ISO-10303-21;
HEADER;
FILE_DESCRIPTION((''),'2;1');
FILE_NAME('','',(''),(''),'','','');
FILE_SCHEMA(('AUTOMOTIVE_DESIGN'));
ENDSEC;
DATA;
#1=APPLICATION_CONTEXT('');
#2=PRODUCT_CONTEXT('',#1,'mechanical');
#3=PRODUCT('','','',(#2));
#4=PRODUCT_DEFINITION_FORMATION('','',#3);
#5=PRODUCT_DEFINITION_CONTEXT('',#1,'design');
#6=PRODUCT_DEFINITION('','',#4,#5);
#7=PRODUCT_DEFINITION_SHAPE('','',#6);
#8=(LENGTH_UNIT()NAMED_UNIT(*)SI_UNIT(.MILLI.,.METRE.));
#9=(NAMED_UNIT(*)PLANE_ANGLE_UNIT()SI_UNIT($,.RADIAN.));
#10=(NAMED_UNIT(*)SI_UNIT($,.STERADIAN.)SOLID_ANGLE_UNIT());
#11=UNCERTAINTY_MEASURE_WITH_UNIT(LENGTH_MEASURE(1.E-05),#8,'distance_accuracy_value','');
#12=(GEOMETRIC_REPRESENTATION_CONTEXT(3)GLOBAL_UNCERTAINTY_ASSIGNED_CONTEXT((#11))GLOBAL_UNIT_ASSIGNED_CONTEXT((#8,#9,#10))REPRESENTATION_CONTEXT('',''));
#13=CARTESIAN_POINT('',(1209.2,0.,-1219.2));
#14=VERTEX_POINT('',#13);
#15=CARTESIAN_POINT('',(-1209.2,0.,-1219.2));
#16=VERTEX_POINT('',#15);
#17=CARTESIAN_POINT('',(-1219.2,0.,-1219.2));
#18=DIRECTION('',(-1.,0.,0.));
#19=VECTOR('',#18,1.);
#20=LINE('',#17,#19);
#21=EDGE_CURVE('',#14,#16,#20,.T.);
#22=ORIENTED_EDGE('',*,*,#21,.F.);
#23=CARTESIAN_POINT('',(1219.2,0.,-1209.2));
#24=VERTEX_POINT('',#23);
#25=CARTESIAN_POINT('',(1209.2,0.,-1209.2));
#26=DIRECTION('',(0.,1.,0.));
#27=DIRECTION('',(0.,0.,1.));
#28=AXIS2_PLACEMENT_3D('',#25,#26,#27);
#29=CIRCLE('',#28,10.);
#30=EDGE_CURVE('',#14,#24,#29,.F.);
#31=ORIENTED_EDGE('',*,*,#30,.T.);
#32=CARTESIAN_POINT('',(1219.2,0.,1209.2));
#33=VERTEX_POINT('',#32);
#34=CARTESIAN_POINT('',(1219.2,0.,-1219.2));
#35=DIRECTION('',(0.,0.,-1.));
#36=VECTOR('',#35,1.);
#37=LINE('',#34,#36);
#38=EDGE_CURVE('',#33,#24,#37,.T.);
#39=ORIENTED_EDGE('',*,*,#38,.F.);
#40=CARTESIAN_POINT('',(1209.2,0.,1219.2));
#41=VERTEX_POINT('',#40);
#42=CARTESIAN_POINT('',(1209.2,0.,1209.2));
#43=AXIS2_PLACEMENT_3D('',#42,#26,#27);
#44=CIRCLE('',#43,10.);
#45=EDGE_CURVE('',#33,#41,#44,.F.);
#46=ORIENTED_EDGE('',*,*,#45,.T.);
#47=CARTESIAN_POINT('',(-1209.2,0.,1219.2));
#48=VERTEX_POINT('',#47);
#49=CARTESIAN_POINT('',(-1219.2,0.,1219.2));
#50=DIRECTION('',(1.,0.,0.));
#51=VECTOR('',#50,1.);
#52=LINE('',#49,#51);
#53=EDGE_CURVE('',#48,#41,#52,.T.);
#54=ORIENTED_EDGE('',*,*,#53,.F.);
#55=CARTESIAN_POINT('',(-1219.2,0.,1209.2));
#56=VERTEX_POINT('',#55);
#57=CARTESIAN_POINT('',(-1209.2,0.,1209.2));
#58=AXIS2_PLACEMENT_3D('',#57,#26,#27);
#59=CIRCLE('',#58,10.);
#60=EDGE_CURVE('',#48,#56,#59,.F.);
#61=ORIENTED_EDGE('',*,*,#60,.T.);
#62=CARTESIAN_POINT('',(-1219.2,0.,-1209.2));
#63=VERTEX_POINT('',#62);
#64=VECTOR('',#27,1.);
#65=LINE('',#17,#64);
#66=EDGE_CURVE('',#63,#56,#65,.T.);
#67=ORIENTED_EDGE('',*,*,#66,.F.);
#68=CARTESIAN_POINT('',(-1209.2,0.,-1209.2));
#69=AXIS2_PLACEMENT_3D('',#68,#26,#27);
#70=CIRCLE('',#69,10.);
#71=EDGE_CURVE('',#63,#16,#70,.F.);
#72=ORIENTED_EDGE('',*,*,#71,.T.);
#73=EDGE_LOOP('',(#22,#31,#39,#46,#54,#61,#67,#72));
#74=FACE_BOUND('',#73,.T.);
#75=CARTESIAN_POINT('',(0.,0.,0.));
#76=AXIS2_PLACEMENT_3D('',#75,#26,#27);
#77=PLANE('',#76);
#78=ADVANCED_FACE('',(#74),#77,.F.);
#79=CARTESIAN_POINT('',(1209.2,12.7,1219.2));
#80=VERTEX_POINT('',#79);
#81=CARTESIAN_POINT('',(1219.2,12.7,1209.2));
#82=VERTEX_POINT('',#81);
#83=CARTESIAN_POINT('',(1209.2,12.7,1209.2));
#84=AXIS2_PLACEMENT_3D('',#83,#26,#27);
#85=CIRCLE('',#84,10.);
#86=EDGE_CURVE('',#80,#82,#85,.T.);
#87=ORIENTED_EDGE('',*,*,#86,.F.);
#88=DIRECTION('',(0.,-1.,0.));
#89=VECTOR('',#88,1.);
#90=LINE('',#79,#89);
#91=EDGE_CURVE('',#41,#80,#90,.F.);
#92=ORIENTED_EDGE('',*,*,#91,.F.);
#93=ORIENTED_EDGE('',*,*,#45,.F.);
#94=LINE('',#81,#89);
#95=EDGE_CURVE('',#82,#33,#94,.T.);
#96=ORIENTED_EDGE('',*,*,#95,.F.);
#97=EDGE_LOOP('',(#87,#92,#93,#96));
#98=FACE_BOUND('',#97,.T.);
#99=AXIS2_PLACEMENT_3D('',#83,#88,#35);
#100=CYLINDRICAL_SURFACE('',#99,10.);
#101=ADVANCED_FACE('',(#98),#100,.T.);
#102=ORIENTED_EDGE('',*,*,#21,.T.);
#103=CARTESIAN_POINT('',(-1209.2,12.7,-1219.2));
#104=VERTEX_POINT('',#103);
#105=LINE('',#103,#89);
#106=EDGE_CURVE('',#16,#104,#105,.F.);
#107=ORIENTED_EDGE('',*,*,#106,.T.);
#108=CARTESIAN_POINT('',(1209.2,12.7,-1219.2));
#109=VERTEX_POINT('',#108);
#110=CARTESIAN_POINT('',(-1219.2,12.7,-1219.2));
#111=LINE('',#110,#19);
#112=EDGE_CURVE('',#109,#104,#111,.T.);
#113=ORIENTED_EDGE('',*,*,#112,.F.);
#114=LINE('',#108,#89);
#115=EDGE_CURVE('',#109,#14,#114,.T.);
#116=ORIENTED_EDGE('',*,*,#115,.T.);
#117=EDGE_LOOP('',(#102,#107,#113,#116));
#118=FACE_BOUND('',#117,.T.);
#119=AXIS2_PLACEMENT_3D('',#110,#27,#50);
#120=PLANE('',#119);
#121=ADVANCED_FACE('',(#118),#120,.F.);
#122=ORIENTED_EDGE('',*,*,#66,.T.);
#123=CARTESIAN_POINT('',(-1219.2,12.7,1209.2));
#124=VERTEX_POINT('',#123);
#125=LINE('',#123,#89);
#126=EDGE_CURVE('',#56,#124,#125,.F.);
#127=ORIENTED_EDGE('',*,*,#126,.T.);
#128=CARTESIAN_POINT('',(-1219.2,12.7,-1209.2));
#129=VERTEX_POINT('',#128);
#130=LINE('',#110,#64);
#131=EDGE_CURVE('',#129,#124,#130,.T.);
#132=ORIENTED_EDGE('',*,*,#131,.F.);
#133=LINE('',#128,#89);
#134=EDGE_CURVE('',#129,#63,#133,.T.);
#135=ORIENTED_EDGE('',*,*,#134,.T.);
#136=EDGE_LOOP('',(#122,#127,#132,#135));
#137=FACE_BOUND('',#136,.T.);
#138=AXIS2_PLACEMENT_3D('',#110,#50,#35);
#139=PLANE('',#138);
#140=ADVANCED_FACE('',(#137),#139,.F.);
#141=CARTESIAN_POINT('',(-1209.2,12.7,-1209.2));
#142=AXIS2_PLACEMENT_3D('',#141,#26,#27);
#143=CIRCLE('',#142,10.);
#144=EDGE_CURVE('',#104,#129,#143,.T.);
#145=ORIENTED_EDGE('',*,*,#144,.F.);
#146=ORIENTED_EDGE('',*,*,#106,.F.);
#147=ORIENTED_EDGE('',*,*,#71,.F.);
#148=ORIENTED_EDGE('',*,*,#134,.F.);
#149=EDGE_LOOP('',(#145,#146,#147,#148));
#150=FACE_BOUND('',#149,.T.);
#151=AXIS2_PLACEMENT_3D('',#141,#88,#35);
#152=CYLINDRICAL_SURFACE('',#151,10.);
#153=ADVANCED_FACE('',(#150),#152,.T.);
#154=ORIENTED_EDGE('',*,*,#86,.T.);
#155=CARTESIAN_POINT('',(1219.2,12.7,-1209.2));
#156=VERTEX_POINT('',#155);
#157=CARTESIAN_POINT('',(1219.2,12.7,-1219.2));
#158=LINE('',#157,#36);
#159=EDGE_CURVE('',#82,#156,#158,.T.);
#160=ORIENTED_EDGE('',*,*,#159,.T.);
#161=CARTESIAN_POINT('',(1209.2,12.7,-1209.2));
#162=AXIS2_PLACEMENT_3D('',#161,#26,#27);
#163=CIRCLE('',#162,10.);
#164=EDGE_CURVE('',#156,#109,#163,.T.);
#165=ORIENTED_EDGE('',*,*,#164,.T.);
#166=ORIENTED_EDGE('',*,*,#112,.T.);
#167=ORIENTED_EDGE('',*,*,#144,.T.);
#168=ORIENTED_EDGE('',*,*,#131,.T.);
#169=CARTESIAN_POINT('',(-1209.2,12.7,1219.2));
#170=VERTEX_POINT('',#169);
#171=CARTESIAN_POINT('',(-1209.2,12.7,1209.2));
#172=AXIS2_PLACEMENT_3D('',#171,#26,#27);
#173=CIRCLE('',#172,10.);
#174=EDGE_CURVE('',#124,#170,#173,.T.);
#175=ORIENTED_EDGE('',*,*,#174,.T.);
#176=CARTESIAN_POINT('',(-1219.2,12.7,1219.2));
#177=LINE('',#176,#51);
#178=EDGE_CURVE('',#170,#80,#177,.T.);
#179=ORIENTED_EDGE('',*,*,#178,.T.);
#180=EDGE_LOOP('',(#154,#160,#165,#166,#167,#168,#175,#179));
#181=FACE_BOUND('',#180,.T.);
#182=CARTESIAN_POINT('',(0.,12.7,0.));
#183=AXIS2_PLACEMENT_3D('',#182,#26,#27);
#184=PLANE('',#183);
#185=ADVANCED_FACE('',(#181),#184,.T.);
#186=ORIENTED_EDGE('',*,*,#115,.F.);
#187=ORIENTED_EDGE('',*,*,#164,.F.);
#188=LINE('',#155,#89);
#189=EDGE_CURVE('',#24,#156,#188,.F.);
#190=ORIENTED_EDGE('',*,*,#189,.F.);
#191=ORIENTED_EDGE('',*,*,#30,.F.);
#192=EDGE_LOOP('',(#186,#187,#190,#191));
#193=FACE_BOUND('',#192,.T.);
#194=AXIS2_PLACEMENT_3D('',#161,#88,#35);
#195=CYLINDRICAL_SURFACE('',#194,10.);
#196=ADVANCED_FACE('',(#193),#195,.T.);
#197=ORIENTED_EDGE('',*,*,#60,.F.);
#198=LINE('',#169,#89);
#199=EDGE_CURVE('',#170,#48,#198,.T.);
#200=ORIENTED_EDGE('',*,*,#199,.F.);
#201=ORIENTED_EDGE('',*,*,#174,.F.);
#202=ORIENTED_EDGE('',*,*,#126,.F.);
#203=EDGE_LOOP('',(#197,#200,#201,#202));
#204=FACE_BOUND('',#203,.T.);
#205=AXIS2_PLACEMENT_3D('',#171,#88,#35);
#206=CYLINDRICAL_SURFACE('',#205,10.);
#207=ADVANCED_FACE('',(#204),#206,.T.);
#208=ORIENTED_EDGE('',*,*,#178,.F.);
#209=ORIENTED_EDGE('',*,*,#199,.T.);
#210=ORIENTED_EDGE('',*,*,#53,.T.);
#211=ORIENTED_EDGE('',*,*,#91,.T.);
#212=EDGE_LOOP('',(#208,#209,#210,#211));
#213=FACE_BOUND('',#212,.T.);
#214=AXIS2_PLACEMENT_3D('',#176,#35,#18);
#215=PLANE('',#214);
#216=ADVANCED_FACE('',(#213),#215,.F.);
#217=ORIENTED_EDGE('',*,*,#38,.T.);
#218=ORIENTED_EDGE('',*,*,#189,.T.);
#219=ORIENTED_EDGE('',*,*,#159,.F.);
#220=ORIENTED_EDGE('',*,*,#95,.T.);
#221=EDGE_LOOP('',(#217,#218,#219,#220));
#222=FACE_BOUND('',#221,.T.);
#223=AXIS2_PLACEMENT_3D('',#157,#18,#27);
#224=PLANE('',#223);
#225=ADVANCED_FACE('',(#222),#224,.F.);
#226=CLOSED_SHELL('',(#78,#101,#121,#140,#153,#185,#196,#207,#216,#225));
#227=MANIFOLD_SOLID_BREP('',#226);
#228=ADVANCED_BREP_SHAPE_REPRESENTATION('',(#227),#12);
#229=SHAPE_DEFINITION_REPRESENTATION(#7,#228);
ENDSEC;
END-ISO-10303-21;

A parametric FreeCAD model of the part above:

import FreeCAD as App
import Part
import Sketcher

V = App.Vector
Q = App.Units.Quantity


def edges_at(feature, points):
    """Names of the edges that pass closest to the given points."""
    edges = feature.Shape.Edges
    near = lambda p: min(range(len(edges)), key=lambda i: edges[i].distToShape(Part.Vertex(*p))[0])
    return sorted({f"Edge{near(p) + 1}" for p in points})

doc = App.newDocument("Part")
body = doc.addObject("PartDesign::Body", "Body")

# Sketch on XZ plane
sketch1 = body.newObject("Sketcher::SketchObject", "Sketch")
sketch1.AttachmentSupport = (doc.getObject("XZ_Plane"), [""])
sketch1.MapMode = "FlatFace"
sketch1.addGeometry([
    Part.LineSegment(V(-1219, -1219, 0), V(-1219, 1219, 0)),
    Part.LineSegment(V(-1219, 1219, 0), V(1219, 1219, 0)),
    Part.LineSegment(V(1219, 1219, 0), V(1219, -1219, 0)),
    Part.LineSegment(V(1219, -1219, 0), V(-1219, -1219, 0)),
], False)
sketch1.addConstraint([
    Sketcher.Constraint("Coincident", 0, 2, 1, 1),
    Sketcher.Constraint("Coincident", 1, 2, 2, 1),
    Sketcher.Constraint("Coincident", 2, 2, 3, 1),
    Sketcher.Constraint("Coincident", 3, 2, 0, 1),
    Sketcher.Constraint("Vertical", 0),
    Sketcher.Constraint("Horizontal", 1),
    Sketcher.Constraint("Vertical", 2),
    Sketcher.Constraint("Horizontal", 3),
    Sketcher.Constraint("Symmetric", 0, 2, 2, 2, -1, 1),
    Sketcher.Constraint("Equal", 3, 0),
    Sketcher.Constraint("DistanceX", 1, 1, 1, 2, Q("96 in")),
])
pad1 = body.newObject("PartDesign::Pad", "Pad")
pad1.Profile = sketch1
pad1.Length = Q("0.5 in")
pad1.Reversed = True
doc.recompute()

fillet = body.newObject("PartDesign::Fillet", "Fillet")
fillet.Base = (pad1, edges_at(pad1, [
    (1219.2, 6.35, 1219.2),
    (-1219.2, 6.35, 1219.2),
    (-1219.2, 6.35, -1219.2),
    (1219.2, 6.35, -1219.2),
]))
fillet.Radius = 10

doc.recompute()
